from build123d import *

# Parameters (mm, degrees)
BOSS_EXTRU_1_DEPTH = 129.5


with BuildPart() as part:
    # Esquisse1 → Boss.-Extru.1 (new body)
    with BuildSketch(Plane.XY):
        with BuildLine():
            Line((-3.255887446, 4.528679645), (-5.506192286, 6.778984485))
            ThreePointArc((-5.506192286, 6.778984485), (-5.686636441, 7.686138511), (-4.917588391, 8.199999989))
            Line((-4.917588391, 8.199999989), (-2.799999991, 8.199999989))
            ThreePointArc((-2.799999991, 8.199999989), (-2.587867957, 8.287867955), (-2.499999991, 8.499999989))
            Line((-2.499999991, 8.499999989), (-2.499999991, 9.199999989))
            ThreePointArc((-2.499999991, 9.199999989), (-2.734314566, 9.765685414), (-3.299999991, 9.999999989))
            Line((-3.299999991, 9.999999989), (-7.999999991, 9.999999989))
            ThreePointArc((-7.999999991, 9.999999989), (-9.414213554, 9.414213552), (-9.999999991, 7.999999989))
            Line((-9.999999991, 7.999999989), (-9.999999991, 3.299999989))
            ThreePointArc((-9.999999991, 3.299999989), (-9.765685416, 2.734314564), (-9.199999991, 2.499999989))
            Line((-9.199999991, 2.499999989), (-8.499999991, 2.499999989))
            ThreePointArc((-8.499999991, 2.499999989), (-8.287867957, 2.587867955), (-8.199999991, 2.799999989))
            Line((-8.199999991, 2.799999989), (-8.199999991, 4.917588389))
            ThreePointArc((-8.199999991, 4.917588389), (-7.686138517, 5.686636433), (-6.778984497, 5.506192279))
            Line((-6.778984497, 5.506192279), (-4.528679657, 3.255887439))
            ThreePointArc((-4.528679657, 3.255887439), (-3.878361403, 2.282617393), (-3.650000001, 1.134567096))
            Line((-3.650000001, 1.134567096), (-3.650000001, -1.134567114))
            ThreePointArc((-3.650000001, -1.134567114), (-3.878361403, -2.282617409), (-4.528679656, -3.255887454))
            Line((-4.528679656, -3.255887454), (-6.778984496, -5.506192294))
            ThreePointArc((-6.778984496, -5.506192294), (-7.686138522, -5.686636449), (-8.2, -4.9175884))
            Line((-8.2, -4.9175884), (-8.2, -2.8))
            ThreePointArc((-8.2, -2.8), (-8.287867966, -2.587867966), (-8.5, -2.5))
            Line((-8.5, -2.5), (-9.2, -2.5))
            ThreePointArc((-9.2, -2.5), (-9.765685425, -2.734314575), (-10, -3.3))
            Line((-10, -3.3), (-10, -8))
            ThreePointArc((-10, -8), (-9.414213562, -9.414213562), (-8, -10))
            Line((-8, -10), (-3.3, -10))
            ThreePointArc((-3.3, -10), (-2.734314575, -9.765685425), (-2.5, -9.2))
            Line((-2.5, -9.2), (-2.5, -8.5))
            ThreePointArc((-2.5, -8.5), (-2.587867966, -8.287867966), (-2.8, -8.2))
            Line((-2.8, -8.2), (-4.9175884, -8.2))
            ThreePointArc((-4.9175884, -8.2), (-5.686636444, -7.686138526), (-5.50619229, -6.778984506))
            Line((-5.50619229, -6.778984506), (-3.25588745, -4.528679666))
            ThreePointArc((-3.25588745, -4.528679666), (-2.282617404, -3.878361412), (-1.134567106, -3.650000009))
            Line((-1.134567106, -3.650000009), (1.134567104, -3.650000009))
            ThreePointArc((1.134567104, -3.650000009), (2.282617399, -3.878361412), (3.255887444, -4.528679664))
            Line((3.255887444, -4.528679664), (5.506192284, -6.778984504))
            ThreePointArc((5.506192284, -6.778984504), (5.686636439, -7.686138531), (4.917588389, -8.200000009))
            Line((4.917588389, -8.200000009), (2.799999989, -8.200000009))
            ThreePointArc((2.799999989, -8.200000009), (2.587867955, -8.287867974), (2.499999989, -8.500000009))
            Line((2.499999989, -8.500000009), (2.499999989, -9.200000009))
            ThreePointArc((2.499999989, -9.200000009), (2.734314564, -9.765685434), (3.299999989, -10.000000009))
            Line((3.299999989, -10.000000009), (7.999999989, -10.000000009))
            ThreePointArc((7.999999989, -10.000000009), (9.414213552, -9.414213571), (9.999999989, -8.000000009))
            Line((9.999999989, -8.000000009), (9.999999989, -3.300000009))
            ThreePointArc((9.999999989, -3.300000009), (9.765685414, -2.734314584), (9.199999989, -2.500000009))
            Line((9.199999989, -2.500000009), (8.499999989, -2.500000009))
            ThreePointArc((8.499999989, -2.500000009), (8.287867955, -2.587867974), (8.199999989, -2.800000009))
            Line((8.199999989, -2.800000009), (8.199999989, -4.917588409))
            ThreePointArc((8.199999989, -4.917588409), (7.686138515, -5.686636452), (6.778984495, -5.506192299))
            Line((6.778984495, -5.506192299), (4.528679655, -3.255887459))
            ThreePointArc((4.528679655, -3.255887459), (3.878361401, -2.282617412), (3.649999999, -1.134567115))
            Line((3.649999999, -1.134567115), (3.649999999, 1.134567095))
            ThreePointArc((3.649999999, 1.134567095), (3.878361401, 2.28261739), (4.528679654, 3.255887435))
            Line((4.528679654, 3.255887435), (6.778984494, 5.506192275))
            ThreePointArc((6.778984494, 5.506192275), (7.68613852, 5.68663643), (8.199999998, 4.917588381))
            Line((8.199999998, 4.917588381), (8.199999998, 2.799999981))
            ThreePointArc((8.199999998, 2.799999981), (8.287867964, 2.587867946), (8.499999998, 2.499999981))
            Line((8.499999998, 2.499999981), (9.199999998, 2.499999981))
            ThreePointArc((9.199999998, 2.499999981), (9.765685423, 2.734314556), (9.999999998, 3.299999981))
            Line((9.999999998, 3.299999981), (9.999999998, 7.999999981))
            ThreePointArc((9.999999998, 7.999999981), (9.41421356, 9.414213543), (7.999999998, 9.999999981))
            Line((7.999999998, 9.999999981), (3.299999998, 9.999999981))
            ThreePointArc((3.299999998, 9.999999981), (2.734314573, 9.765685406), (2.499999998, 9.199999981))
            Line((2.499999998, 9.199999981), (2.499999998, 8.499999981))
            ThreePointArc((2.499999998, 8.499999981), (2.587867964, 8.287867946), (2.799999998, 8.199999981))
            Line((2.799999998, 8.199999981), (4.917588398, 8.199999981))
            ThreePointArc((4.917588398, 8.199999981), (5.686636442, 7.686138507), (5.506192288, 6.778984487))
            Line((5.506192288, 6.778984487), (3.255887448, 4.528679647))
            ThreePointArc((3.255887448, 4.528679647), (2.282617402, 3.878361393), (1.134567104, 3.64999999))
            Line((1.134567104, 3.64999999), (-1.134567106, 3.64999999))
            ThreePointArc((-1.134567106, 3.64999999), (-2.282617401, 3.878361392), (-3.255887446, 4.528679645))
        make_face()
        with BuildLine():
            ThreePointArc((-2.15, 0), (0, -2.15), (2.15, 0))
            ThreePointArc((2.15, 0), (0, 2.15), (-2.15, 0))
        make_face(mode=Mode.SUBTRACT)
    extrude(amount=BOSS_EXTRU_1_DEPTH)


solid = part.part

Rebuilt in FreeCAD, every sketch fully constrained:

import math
import FreeCAD as App
import Part
import Sketcher

doc = App.newDocument("Part")
body = doc.addObject("PartDesign::Body", "Body")

sketch1 = body.newObject("Sketcher::SketchObject", "Sketch")
sketch1.AttachmentSupport = (doc.getObject("XY_Plane"), [""])
sketch1.MapMode = "FlatFace"
sketch1.addGeometry(Part.LineSegment(App.Vector(-3.26, 4.53, 0), App.Vector(-5.51, 6.78, 0)), False)
sketch1.addGeometry(Part.ArcOfCircle(Part.Circle(App.Vector(-4.92, 7.37, 0), App.Vector(0, 0, 1), 0.83), math.radians(90), math.radians(225)), False)
sketch1.addGeometry(Part.LineSegment(App.Vector(-4.92, 8.2, 0), App.Vector(-2.8, 8.2, 0)), False)
sketch1.addGeometry(Part.ArcOfCircle(Part.Circle(App.Vector(-2.8, 8.5, 0), App.Vector(0, 0, 1), 0.3), math.radians(-90), math.radians(0)), False)
sketch1.addGeometry(Part.LineSegment(App.Vector(-2.5, 8.5, 0), App.Vector(-2.5, 9.2, 0)), False)
sketch1.addGeometry(Part.ArcOfCircle(Part.Circle(App.Vector(-3.3, 9.2, 0), App.Vector(0, 0, 1), 0.8), math.radians(0), math.radians(90)), False)
sketch1.addGeometry(Part.LineSegment(App.Vector(-3.3, 10, 0), App.Vector(-8, 10, 0)), False)
sketch1.addGeometry(Part.ArcOfCircle(Part.Circle(App.Vector(-8, 8, 0), App.Vector(0, 0, 1), 2), math.radians(90), math.radians(180)), False)
sketch1.addGeometry(Part.LineSegment(App.Vector(-10, 8, 0), App.Vector(-10, 3.3, 0)), False)
sketch1.addGeometry(Part.ArcOfCircle(Part.Circle(App.Vector(-9.2, 3.3, 0), App.Vector(0, 0, 1), 0.8), math.radians(180), math.radians(270)), False)
sketch1.addGeometry(Part.LineSegment(App.Vector(-9.2, 2.5, 0), App.Vector(-8.5, 2.5, 0)), False)
sketch1.addGeometry(Part.ArcOfCircle(Part.Circle(App.Vector(-8.5, 2.8, 0), App.Vector(0, 0, 1), 0.3), math.radians(-90), math.radians(0)), False)
sketch1.addGeometry(Part.LineSegment(App.Vector(-8.2, 2.8, 0), App.Vector(-8.2, 4.92, 0)), False)
sketch1.addGeometry(Part.ArcOfCircle(Part.Circle(App.Vector(-7.37, 4.92, 0), App.Vector(0, 0, 1), 0.83), math.radians(45), math.radians(180)), False)
sketch1.addGeometry(Part.LineSegment(App.Vector(-6.78, 5.51, 0), App.Vector(-4.53, 3.26, 0)), False)
sketch1.addGeometry(Part.ArcOfCircle(Part.Circle(App.Vector(-6.65, 1.13, 0), App.Vector(0, 0, 1), 3), math.radians(0), math.radians(45)), False)
sketch1.addGeometry(Part.LineSegment(App.Vector(-3.65, 1.13, 0), App.Vector(-3.65, -1.13, 0)), False)
sketch1.addGeometry(Part.ArcOfCircle(Part.Circle(App.Vector(-6.65, -1.13, 0), App.Vector(0, 0, 1), 3), math.radians(-45), math.radians(0)), False)
sketch1.addGeometry(Part.LineSegment(App.Vector(-4.53, -3.26, 0), App.Vector(-6.78, -5.51, 0)), False)
sketch1.addGeometry(Part.ArcOfCircle(Part.Circle(App.Vector(-7.37, -4.92, 0), App.Vector(0, 0, 1), 0.83), math.radians(180), math.radians(315)), False)
sketch1.addGeometry(Part.LineSegment(App.Vector(-8.2, -4.92, 0), App.Vector(-8.2, -2.8, 0)), False)
sketch1.addGeometry(Part.ArcOfCircle(Part.Circle(App.Vector(-8.5, -2.8, 0), App.Vector(0, 0, 1), 0.3), math.radians(0), math.radians(90)), False)
sketch1.addGeometry(Part.LineSegment(App.Vector(-8.5, -2.5, 0), App.Vector(-9.2, -2.5, 0)), False)
sketch1.addGeometry(Part.ArcOfCircle(Part.Circle(App.Vector(-9.2, -3.3, 0), App.Vector(0, 0, 1), 0.8), math.radians(90), math.radians(180)), False)
sketch1.addGeometry(Part.LineSegment(App.Vector(-10, -3.3, 0), App.Vector(-10, -8, 0)), False)
sketch1.addGeometry(Part.ArcOfCircle(Part.Circle(App.Vector(-8, -8, 0), App.Vector(0, 0, 1), 2), math.radians(-180), math.radians(-90)), False)
sketch1.addGeometry(Part.LineSegment(App.Vector(-8, -10, 0), App.Vector(-3.3, -10, 0)), False)
sketch1.addGeometry(Part.ArcOfCircle(Part.Circle(App.Vector(-3.3, -9.2, 0), App.Vector(0, 0, 1), 0.8), math.radians(-90), math.radians(0)), False)
sketch1.addGeometry(Part.LineSegment(App.Vector(-2.5, -9.2, 0), App.Vector(-2.5, -8.5, 0)), False)
sketch1.addGeometry(Part.ArcOfCircle(Part.Circle(App.Vector(-2.8, -8.5, 0), App.Vector(0, 0, 1), 0.3), math.radians(0), math.radians(90)), False)
sketch1.addGeometry(Part.LineSegment(App.Vector(-2.8, -8.2, 0), App.Vector(-4.92, -8.2, 0)), False)
sketch1.addGeometry(Part.ArcOfCircle(Part.Circle(App.Vector(-4.92, -7.37, 0), App.Vector(0, 0, 1), 0.83), math.radians(135), math.radians(270)), False)
sketch1.addGeometry(Part.LineSegment(App.Vector(-5.51, -6.78, 0), App.Vector(-3.26, -4.53, 0)), False)
sketch1.addGeometry(Part.ArcOfCircle(Part.Circle(App.Vector(-1.13, -6.65, 0), App.Vector(0, 0, 1), 3), math.radians(90), math.radians(135)), False)
sketch1.addGeometry(Part.LineSegment(App.Vector(-1.13, -3.65, 0), App.Vector(1.13, -3.65, 0)), False)
sketch1.addGeometry(Part.ArcOfCircle(Part.Circle(App.Vector(1.13, -6.65, 0), App.Vector(0, 0, 1), 3), math.radians(45), math.radians(90)), False)
sketch1.addGeometry(Part.LineSegment(App.Vector(3.26, -4.53, 0), App.Vector(5.51, -6.78, 0)), False)
sketch1.addGeometry(Part.ArcOfCircle(Part.Circle(App.Vector(4.92, -7.37, 0), App.Vector(0, 0, 1), 0.83), math.radians(-90), math.radians(45)), False)
sketch1.addGeometry(Part.LineSegment(App.Vector(4.92, -8.2, 0), App.Vector(2.8, -8.2, 0)), False)
sketch1.addGeometry(Part.ArcOfCircle(Part.Circle(App.Vector(2.8, -8.5, 0), App.Vector(0, 0, 1), 0.3), math.radians(90), math.radians(180)), False)
sketch1.addGeometry(Part.LineSegment(App.Vector(2.5, -8.5, 0), App.Vector(2.5, -9.2, 0)), False)
sketch1.addGeometry(Part.ArcOfCircle(Part.Circle(App.Vector(3.3, -9.2, 0), App.Vector(0, 0, 1), 0.8), math.radians(180), math.radians(270)), False)
sketch1.addGeometry(Part.LineSegment(App.Vector(3.3, -10, 0), App.Vector(8, -10, 0)), False)
sketch1.addGeometry(Part.ArcOfCircle(Part.Circle(App.Vector(8, -8, 0), App.Vector(0, 0, 1), 2), math.radians(-90), math.radians(0)), False)
sketch1.addGeometry(Part.LineSegment(App.Vector(10, -8, 0), App.Vector(10, -3.3, 0)), False)
sketch1.addGeometry(Part.ArcOfCircle(Part.Circle(App.Vector(9.2, -3.3, 0), App.Vector(0, 0, 1), 0.8), math.radians(0), math.radians(90)), False)
sketch1.addGeometry(Part.LineSegment(App.Vector(9.2, -2.5, 0), App.Vector(8.5, -2.5, 0)), False)
sketch1.addGeometry(Part.ArcOfCircle(Part.Circle(App.Vector(8.5, -2.8, 0), App.Vector(0, 0, 1), 0.3), math.radians(90), math.radians(180)), False)
sketch1.addGeometry(Part.LineSegment(App.Vector(8.2, -2.8, 0), App.Vector(8.2, -4.92, 0)), False)
sketch1.addGeometry(Part.ArcOfCircle(Part.Circle(App.Vector(7.37, -4.92, 0), App.Vector(0, 0, 1), 0.83), math.radians(-135), math.radians(0)), False)
sketch1.addGeometry(Part.LineSegment(App.Vector(6.78, -5.51, 0), App.Vector(4.53, -3.26, 0)), False)
sketch1.addGeometry(Part.ArcOfCircle(Part.Circle(App.Vector(6.65, -1.13, 0), App.Vector(0, 0, 1), 3), math.radians(180), math.radians(225)), False)
sketch1.addGeometry(Part.LineSegment(App.Vector(3.65, -1.13, 0), App.Vector(3.65, 1.13, 0)), False)
sketch1.addGeometry(Part.ArcOfCircle(Part.Circle(App.Vector(6.65, 1.13, 0), App.Vector(0, 0, 1), 3), math.radians(135), math.radians(180)), False)
sketch1.addGeometry(Part.LineSegment(App.Vector(4.53, 3.26, 0), App.Vector(6.78, 5.51, 0)), False)
sketch1.addGeometry(Part.ArcOfCircle(Part.Circle(App.Vector(7.37, 4.92, 0), App.Vector(0, 0, 1), 0.83), math.radians(0), math.radians(135)), False)
sketch1.addGeometry(Part.LineSegment(App.Vector(8.2, 4.92, 0), App.Vector(8.2, 2.8, 0)), False)
sketch1.addGeometry(Part.ArcOfCircle(Part.Circle(App.Vector(8.5, 2.8, 0), App.Vector(0, 0, 1), 0.3), math.radians(180), math.radians(270)), False)
sketch1.addGeometry(Part.LineSegment(App.Vector(8.5, 2.5, 0), App.Vector(9.2, 2.5, 0)), False)
sketch1.addGeometry(Part.ArcOfCircle(Part.Circle(App.Vector(9.2, 3.3, 0), App.Vector(0, 0, 1), 0.8), math.radians(-90), math.radians(0)), False)
sketch1.addGeometry(Part.LineSegment(App.Vector(10, 3.3, 0), App.Vector(10, 8, 0)), False)
sketch1.addGeometry(Part.ArcOfCircle(Part.Circle(App.Vector(8, 8, 0), App.Vector(0, 0, 1), 2), math.radians(0), math.radians(90)), False)
sketch1.addGeometry(Part.LineSegment(App.Vector(8, 10, 0), App.Vector(3.3, 10, 0)), False)
sketch1.addGeometry(Part.ArcOfCircle(Part.Circle(App.Vector(3.3, 9.2, 0), App.Vector(0, 0, 1), 0.8), math.radians(90), math.radians(180)), False)
sketch1.addGeometry(Part.LineSegment(App.Vector(2.5, 9.2, 0), App.Vector(2.5, 8.5, 0)), False)
sketch1.addGeometry(Part.ArcOfCircle(Part.Circle(App.Vector(2.8, 8.5, 0), App.Vector(0, 0, 1), 0.3), math.radians(180), math.radians(270)), False)
sketch1.addGeometry(Part.LineSegment(App.Vector(2.8, 8.2, 0), App.Vector(4.92, 8.2, 0)), False)
sketch1.addGeometry(Part.ArcOfCircle(Part.Circle(App.Vector(4.92, 7.37, 0), App.Vector(0, 0, 1), 0.83), math.radians(-45), math.radians(90)), False)
sketch1.addGeometry(Part.LineSegment(App.Vector(5.51, 6.78, 0), App.Vector(3.26, 4.53, 0)), False)
sketch1.addGeometry(Part.ArcOfCircle(Part.Circle(App.Vector(1.13, 6.65, 0), App.Vector(0, 0, 1), 3), math.radians(-90), math.radians(-45)), False)
sketch1.addGeometry(Part.LineSegment(App.Vector(1.13, 3.65, 0), App.Vector(-1.13, 3.65, 0)), False)
sketch1.addGeometry(Part.ArcOfCircle(Part.Circle(App.Vector(-1.13, 6.65, 0), App.Vector(0, 0, 1), 3), math.radians(-135), math.radians(-90)), False)
sketch1.addGeometry(Part.Circle(App.Vector(0, 0, 0), App.Vector(0, 0, 1), 2.15), False)
sketch1.addConstraint(Sketcher.Constraint("Tangent", 0, 2, 1, 2))
sketch1.addConstraint(Sketcher.Constraint("Tangent", 1, 1, 2, 1))
sketch1.addConstraint(Sketcher.Constraint("Tangent", 2, 2, 3, 1))
sketch1.addConstraint(Sketcher.Constraint("Tangent", 3, 2, 4, 1))
sketch1.addConstraint(Sketcher.Constraint("Tangent", 4, 2, 5, 1))
sketch1.addConstraint(Sketcher.Constraint("Tangent", 5, 2, 6, 1))
sketch1.addConstraint(Sketcher.Constraint("Tangent", 6, 2, 7, 1))
sketch1.addConstraint(Sketcher.Constraint("Tangent", 7, 2, 8, 1))
sketch1.addConstraint(Sketcher.Constraint("Tangent", 8, 2, 9, 1))
sketch1.addConstraint(Sketcher.Constraint("Tangent", 9, 2, 10, 1))
sketch1.addConstraint(Sketcher.Constraint("Tangent", 10, 2, 11, 1))
sketch1.addConstraint(Sketcher.Constraint("Tangent", 11, 2, 12, 1))
sketch1.addConstraint(Sketcher.Constraint("Tangent", 12, 2, 13, 2))
sketch1.addConstraint(Sketcher.Constraint("Tangent", 13, 1, 14, 1))
sketch1.addConstraint(Sketcher.Constraint("Tangent", 14, 2, 15, 2))
sketch1.addConstraint(Sketcher.Constraint("Tangent", 15, 1, 16, 1))
sketch1.addConstraint(Sketcher.Constraint("Tangent", 16, 2, 17, 2))
sketch1.addConstraint(Sketcher.Constraint("Tangent", 17, 1, 18, 1))
sketch1.addConstraint(Sketcher.Constraint("Tangent", 18, 2, 19, 2))
sketch1.addConstraint(Sketcher.Constraint("Tangent", 19, 1, 20, 1))
sketch1.addConstraint(Sketcher.Constraint("Tangent", 20, 2, 21, 1))
sketch1.addConstraint(Sketcher.Constraint("Tangent", 21, 2, 22, 1))
sketch1.addConstraint(Sketcher.Constraint("Tangent", 22, 2, 23, 1))
sketch1.addConstraint(Sketcher.Constraint("Tangent", 23, 2, 24, 1))
sketch1.addConstraint(Sketcher.Constraint("Tangent", 24, 2, 25, 1))
sketch1.addConstraint(Sketcher.Constraint("Tangent", 25, 2, 26, 1))
sketch1.addConstraint(Sketcher.Constraint("Tangent", 26, 2, 27, 1))
sketch1.addConstraint(Sketcher.Constraint("Tangent", 27, 2, 28, 1))
sketch1.addConstraint(Sketcher.Constraint("Tangent", 28, 2, 29, 1))
sketch1.addConstraint(Sketcher.Constraint("Tangent", 29, 2, 30, 1))
sketch1.addConstraint(Sketcher.Constraint("Tangent", 30, 2, 31, 2))
sketch1.addConstraint(Sketcher.Constraint("Tangent", 31, 1, 32, 1))
sketch1.addConstraint(Sketcher.Constraint("Tangent", 32, 2, 33, 2))
sketch1.addConstraint(Sketcher.Constraint("Tangent", 33, 1, 34, 1))
sketch1.addConstraint(Sketcher.Constraint("Tangent", 34, 2, 35, 2))
sketch1.addConstraint(Sketcher.Constraint("Tangent", 35, 1, 36, 1))
sketch1.addConstraint(Sketcher.Constraint("Tangent", 36, 2, 37, 2))
sketch1.addConstraint(Sketcher.Constraint("Tangent", 37, 1, 38, 1))
sketch1.addConstraint(Sketcher.Constraint("Tangent", 38, 2, 39, 1))
sketch1.addConstraint(Sketcher.Constraint("Tangent", 39, 2, 40, 1))
sketch1.addConstraint(Sketcher.Constraint("Tangent", 40, 2, 41, 1))
sketch1.addConstraint(Sketcher.Constraint("Tangent", 41, 2, 42, 1))
sketch1.addConstraint(Sketcher.Constraint("Tangent", 42, 2, 43, 1))
sketch1.addConstraint(Sketcher.Constraint("Tangent", 43, 2, 44, 1))
sketch1.addConstraint(Sketcher.Constraint("Tangent", 44, 2, 45, 1))
sketch1.addConstraint(Sketcher.Constraint("Tangent", 45, 2, 46, 1))
sketch1.addConstraint(Sketcher.Constraint("Tangent", 46, 2, 47, 1))
sketch1.addConstraint(Sketcher.Constraint("Tangent", 47, 2, 48, 1))
sketch1.addConstraint(Sketcher.Constraint("Tangent", 48, 2, 49, 2))
sketch1.addConstraint(Sketcher.Constraint("Tangent", 49, 1, 50, 1))
sketch1.addConstraint(Sketcher.Constraint("Tangent", 50, 2, 51, 2))
sketch1.addConstraint(Sketcher.Constraint("Tangent", 51, 1, 52, 1))
sketch1.addConstraint(Sketcher.Constraint("Tangent", 52, 2, 53, 2))
sketch1.addConstraint(Sketcher.Constraint("Tangent", 53, 1, 54, 1))
sketch1.addConstraint(Sketcher.Constraint("Tangent", 54, 2, 55, 2))
sketch1.addConstraint(Sketcher.Constraint("Tangent", 55, 1, 56, 1))
sketch1.addConstraint(Sketcher.Constraint("Tangent", 56, 2, 57, 1))
sketch1.addConstraint(Sketcher.Constraint("Tangent", 57, 2, 58, 1))
sketch1.addConstraint(Sketcher.Constraint("Tangent", 58, 2, 59, 1))
sketch1.addConstraint(Sketcher.Constraint("Tangent", 59, 2, 60, 1))
sketch1.addConstraint(Sketcher.Constraint("Tangent", 60, 2, 61, 1))
sketch1.addConstraint(Sketcher.Constraint("Tangent", 61, 2, 62, 1))
sketch1.addConstraint(Sketcher.Constraint("Tangent", 62, 2, 63, 1))
sketch1.addConstraint(Sketcher.Constraint("Tangent", 63, 2, 64, 1))
sketch1.addConstraint(Sketcher.Constraint("Tangent", 64, 2, 65, 1))
sketch1.addConstraint(Sketcher.Constraint("Tangent", 65, 2, 66, 1))
sketch1.addConstraint(Sketcher.Constraint("Tangent", 66, 2, 67, 2))
sketch1.addConstraint(Sketcher.Constraint("Tangent", 67, 1, 68, 1))
sketch1.addConstraint(Sketcher.Constraint("Tangent", 68, 2, 69, 2))
sketch1.addConstraint(Sketcher.Constraint("Tangent", 69, 1, 70, 1))
sketch1.addConstraint(Sketcher.Constraint("Tangent", 70, 2, 71, 2))
sketch1.addConstraint(Sketcher.Constraint("Tangent", 71, 1, 0, 1))
sketch1.addConstraint(Sketcher.Constraint("Horizontal", 2))
sketch1.addConstraint(Sketcher.Constraint("Vertical", 4))
sketch1.addConstraint(Sketcher.Constraint("Horizontal", 6))
sketch1.addConstraint(Sketcher.Constraint("Vertical", 8))
sketch1.addConstraint(Sketcher.Constraint("Horizontal", 10))
sketch1.addConstraint(Sketcher.Constraint("Vertical", 12))
sketch1.addConstraint(Sketcher.Constraint("Vertical", 16))
sketch1.addConstraint(Sketcher.Constraint("Vertical", 20))
sketch1.addConstraint(Sketcher.Constraint("Horizontal", 22))
sketch1.addConstraint(Sketcher.Constraint("Vertical", 24))
sketch1.addConstraint(Sketcher.Constraint("Horizontal", 26))
sketch1.addConstraint(Sketcher.Constraint("Vertical", 28))
sketch1.addConstraint(Sketcher.Constraint("Horizontal", 30))
sketch1.addConstraint(Sketcher.Constraint("Horizontal", 34))
sketch1.addConstraint(Sketcher.Constraint("Horizontal", 38))
sketch1.addConstraint(Sketcher.Constraint("Vertical", 40))
sketch1.addConstraint(Sketcher.Constraint("Horizontal", 42))
sketch1.addConstraint(Sketcher.Constraint("Vertical", 44))
sketch1.addConstraint(Sketcher.Constraint("Horizontal", 46))
sketch1.addConstraint(Sketcher.Constraint("Vertical", 48))
sketch1.addConstraint(Sketcher.Constraint("Vertical", 52))
sketch1.addConstraint(Sketcher.Constraint("Vertical", 56))
sketch1.addConstraint(Sketcher.Constraint("Horizontal", 58))
sketch1.addConstraint(Sketcher.Constraint("Vertical", 60))
sketch1.addConstraint(Sketcher.Constraint("Horizontal", 62))
sketch1.addConstraint(Sketcher.Constraint("Vertical", 64))
sketch1.addConstraint(Sketcher.Constraint("Horizontal", 66))
sketch1.addConstraint(Sketcher.Constraint("Horizontal", 70))
sketch1.addConstraint(Sketcher.Constraint("Coincident", 72, 3, -1, 1))
sketch1.addConstraint(Sketcher.Constraint("Equal", 5, 9))
sketch1.addConstraint(Sketcher.Constraint("Equal", 3, 11))
sketch1.addConstraint(Sketcher.Constraint("Equal", 1, 13))
sketch1.addConstraint(Sketcher.Constraint("Equal", 15, 17))
sketch1.addConstraint(Sketcher.Constraint("Equal", 13, 19))
sketch1.addConstraint(Sketcher.Constraint("Equal", 11, 21))
sketch1.addConstraint(Sketcher.Constraint("Equal", 9, 23))
sketch1.addConstraint(Sketcher.Constraint("Equal", 7, 25))
sketch1.addConstraint(Sketcher.Constraint("Equal", 23, 27))
sketch1.addConstraint(Sketcher.Constraint("Equal", 21, 29))
sketch1.addConstraint(Sketcher.Constraint("Equal", 19, 31))
sketch1.addConstraint(Sketcher.Constraint("Equal", 17, 33))
sketch1.addConstraint(Sketcher.Constraint("Equal", 33, 35))
sketch1.addConstraint(Sketcher.Constraint("Equal", 31, 37))
sketch1.addConstraint(Sketcher.Constraint("Equal", 29, 39))
sketch1.addConstraint(Sketcher.Constraint("Equal", 27, 41))
sketch1.addConstraint(Sketcher.Constraint("Equal", 25, 43))
sketch1.addConstraint(Sketcher.Constraint("Equal", 41, 45))
sketch1.addConstraint(Sketcher.Constraint("Equal", 39, 47))
sketch1.addConstraint(Sketcher.Constraint("Equal", 37, 49))
sketch1.addConstraint(Sketcher.Constraint("Equal", 35, 51))
sketch1.addConstraint(Sketcher.Constraint("Equal", 51, 53))
sketch1.addConstraint(Sketcher.Constraint("Equal", 49, 55))
sketch1.addConstraint(Sketcher.Constraint("Equal", 47, 57))
sketch1.addConstraint(Sketcher.Constraint("Equal", 45, 59))
sketch1.addConstraint(Sketcher.Constraint("Equal", 43, 61))
sketch1.addConstraint(Sketcher.Constraint("Equal", 59, 63))
sketch1.addConstraint(Sketcher.Constraint("Equal", 57, 65))
sketch1.addConstraint(Sketcher.Constraint("Equal", 55, 67))
sketch1.addConstraint(Sketcher.Constraint("Equal", 53, 69))
sketch1.addConstraint(Sketcher.Constraint("Equal", 69, 71))
sketch1.addConstraint(Sketcher.Constraint("Symmetric", 1, 3, 37, 3, -1, 1))
sketch1.addConstraint(Sketcher.Constraint("Symmetric", 5, 3, 41, 3, -1, 1))
sketch1.addConstraint(Sketcher.Constraint("Symmetric", 9, 3, 45, 3, -1, 1))
sketch1.addConstraint(Sketcher.Constraint("Symmetric", 13, 3, 49, 3, -1, 1))
sketch1.addConstraint(Sketcher.Constraint("Symmetric", 15, 3, 51, 3, -1, 1))
sketch1.addConstraint(Sketcher.Constraint("Symmetric", 19, 3, 55, 3, -1, 1))
sketch1.addConstraint(Sketcher.Constraint("Symmetric", 23, 3, 59, 3, -1, 1))
sketch1.addConstraint(Sketcher.Constraint("Symmetric", 27, 3, 63, 3, -1, 1))
sketch1.addConstraint(Sketcher.Constraint("Symmetric", 31, 3, 67, 3, -1, 1))
sketch1.addConstraint(Sketcher.Constraint("Symmetric", 33, 3, 69, 3, -1, 1))
sketch1.addConstraint(Sketcher.Constraint("Symmetric", 31, 3, 37, 3, -2))
sketch1.addConstraint(Sketcher.Constraint("Symmetric", 27, 3, 41, 3, -2))
sketch1.addConstraint(Sketcher.Constraint("Symmetric", 23, 3, 45, 3, -2))
sketch1.addConstraint(Sketcher.Constraint("Symmetric", 19, 3, 49, 3, -2))
sketch1.addConstraint(Sketcher.Constraint("Parallel", 0, 14))
sketch1.addConstraint(Sketcher.Constraint("Perpendicular", 14, 18))
sketch1.addConstraint(Sketcher.Constraint("Parallel", 18, 32))
sketch1.addConstraint(Sketcher.Constraint("Perpendicular", 32, 36))
sketch1.addConstraint(Sketcher.Constraint("Perpendicular", 50, 54))
sketch1.addConstraint(Sketcher.Constraint("Horizontal", 17, 3, 51, 3))
sketch1.addConstraint(Sketcher.Constraint("Equal", 58, 4))
sketch1.addConstraint(Sketcher.Constraint("Equal", 62, 8))
sketch1.addConstraint(Sketcher.Constraint("Equal", 66, 12))
sketch1.addConstraint(Sketcher.Constraint("Equal", 70, 16))
sketch1.addConstraint(Sketcher.Constraint("Equal", 0, 14))
sketch1.addConstraint(Sketcher.Constraint("Radius", 7, 2.0))
sketch1.addConstraint(Sketcher.Constraint("Radius", 15, 3.0))
sketch1.addConstraint(Sketcher.Constraint("Diameter", 72, 4.3))
sketch1.addConstraint(Sketcher.Constraint("Radius", 3, 0.3))
sketch1.addConstraint(Sketcher.Constraint("Radius", 5, 0.8))
sketch1.addConstraint(Sketcher.Constraint("DistanceX", 6, 2, 6, 1, 4.7))
sketch1.addConstraint(Sketcher.Constraint("DistanceX", 10, 1, 10, 2, 0.7))
sketch1.addConstraint(Sketcher.Constraint("DistanceX", 7, 3, -1, 1, 8.0))
sketch1.addConstraint(Sketcher.Constraint("DistanceX", 15, 3, -1, 1, 6.65))
sketch1.addConstraint(Sketcher.Constraint("Radius", 1, 0.832412))
sketch1.addConstraint(Sketcher.Constraint("DistanceX", 2, 1, 2, 2, 2.117588))
pad1 = body.newObject("PartDesign::Pad", "Pad")
pad1.Profile = sketch1
pad1.Length = 129.5

doc.recompute()
